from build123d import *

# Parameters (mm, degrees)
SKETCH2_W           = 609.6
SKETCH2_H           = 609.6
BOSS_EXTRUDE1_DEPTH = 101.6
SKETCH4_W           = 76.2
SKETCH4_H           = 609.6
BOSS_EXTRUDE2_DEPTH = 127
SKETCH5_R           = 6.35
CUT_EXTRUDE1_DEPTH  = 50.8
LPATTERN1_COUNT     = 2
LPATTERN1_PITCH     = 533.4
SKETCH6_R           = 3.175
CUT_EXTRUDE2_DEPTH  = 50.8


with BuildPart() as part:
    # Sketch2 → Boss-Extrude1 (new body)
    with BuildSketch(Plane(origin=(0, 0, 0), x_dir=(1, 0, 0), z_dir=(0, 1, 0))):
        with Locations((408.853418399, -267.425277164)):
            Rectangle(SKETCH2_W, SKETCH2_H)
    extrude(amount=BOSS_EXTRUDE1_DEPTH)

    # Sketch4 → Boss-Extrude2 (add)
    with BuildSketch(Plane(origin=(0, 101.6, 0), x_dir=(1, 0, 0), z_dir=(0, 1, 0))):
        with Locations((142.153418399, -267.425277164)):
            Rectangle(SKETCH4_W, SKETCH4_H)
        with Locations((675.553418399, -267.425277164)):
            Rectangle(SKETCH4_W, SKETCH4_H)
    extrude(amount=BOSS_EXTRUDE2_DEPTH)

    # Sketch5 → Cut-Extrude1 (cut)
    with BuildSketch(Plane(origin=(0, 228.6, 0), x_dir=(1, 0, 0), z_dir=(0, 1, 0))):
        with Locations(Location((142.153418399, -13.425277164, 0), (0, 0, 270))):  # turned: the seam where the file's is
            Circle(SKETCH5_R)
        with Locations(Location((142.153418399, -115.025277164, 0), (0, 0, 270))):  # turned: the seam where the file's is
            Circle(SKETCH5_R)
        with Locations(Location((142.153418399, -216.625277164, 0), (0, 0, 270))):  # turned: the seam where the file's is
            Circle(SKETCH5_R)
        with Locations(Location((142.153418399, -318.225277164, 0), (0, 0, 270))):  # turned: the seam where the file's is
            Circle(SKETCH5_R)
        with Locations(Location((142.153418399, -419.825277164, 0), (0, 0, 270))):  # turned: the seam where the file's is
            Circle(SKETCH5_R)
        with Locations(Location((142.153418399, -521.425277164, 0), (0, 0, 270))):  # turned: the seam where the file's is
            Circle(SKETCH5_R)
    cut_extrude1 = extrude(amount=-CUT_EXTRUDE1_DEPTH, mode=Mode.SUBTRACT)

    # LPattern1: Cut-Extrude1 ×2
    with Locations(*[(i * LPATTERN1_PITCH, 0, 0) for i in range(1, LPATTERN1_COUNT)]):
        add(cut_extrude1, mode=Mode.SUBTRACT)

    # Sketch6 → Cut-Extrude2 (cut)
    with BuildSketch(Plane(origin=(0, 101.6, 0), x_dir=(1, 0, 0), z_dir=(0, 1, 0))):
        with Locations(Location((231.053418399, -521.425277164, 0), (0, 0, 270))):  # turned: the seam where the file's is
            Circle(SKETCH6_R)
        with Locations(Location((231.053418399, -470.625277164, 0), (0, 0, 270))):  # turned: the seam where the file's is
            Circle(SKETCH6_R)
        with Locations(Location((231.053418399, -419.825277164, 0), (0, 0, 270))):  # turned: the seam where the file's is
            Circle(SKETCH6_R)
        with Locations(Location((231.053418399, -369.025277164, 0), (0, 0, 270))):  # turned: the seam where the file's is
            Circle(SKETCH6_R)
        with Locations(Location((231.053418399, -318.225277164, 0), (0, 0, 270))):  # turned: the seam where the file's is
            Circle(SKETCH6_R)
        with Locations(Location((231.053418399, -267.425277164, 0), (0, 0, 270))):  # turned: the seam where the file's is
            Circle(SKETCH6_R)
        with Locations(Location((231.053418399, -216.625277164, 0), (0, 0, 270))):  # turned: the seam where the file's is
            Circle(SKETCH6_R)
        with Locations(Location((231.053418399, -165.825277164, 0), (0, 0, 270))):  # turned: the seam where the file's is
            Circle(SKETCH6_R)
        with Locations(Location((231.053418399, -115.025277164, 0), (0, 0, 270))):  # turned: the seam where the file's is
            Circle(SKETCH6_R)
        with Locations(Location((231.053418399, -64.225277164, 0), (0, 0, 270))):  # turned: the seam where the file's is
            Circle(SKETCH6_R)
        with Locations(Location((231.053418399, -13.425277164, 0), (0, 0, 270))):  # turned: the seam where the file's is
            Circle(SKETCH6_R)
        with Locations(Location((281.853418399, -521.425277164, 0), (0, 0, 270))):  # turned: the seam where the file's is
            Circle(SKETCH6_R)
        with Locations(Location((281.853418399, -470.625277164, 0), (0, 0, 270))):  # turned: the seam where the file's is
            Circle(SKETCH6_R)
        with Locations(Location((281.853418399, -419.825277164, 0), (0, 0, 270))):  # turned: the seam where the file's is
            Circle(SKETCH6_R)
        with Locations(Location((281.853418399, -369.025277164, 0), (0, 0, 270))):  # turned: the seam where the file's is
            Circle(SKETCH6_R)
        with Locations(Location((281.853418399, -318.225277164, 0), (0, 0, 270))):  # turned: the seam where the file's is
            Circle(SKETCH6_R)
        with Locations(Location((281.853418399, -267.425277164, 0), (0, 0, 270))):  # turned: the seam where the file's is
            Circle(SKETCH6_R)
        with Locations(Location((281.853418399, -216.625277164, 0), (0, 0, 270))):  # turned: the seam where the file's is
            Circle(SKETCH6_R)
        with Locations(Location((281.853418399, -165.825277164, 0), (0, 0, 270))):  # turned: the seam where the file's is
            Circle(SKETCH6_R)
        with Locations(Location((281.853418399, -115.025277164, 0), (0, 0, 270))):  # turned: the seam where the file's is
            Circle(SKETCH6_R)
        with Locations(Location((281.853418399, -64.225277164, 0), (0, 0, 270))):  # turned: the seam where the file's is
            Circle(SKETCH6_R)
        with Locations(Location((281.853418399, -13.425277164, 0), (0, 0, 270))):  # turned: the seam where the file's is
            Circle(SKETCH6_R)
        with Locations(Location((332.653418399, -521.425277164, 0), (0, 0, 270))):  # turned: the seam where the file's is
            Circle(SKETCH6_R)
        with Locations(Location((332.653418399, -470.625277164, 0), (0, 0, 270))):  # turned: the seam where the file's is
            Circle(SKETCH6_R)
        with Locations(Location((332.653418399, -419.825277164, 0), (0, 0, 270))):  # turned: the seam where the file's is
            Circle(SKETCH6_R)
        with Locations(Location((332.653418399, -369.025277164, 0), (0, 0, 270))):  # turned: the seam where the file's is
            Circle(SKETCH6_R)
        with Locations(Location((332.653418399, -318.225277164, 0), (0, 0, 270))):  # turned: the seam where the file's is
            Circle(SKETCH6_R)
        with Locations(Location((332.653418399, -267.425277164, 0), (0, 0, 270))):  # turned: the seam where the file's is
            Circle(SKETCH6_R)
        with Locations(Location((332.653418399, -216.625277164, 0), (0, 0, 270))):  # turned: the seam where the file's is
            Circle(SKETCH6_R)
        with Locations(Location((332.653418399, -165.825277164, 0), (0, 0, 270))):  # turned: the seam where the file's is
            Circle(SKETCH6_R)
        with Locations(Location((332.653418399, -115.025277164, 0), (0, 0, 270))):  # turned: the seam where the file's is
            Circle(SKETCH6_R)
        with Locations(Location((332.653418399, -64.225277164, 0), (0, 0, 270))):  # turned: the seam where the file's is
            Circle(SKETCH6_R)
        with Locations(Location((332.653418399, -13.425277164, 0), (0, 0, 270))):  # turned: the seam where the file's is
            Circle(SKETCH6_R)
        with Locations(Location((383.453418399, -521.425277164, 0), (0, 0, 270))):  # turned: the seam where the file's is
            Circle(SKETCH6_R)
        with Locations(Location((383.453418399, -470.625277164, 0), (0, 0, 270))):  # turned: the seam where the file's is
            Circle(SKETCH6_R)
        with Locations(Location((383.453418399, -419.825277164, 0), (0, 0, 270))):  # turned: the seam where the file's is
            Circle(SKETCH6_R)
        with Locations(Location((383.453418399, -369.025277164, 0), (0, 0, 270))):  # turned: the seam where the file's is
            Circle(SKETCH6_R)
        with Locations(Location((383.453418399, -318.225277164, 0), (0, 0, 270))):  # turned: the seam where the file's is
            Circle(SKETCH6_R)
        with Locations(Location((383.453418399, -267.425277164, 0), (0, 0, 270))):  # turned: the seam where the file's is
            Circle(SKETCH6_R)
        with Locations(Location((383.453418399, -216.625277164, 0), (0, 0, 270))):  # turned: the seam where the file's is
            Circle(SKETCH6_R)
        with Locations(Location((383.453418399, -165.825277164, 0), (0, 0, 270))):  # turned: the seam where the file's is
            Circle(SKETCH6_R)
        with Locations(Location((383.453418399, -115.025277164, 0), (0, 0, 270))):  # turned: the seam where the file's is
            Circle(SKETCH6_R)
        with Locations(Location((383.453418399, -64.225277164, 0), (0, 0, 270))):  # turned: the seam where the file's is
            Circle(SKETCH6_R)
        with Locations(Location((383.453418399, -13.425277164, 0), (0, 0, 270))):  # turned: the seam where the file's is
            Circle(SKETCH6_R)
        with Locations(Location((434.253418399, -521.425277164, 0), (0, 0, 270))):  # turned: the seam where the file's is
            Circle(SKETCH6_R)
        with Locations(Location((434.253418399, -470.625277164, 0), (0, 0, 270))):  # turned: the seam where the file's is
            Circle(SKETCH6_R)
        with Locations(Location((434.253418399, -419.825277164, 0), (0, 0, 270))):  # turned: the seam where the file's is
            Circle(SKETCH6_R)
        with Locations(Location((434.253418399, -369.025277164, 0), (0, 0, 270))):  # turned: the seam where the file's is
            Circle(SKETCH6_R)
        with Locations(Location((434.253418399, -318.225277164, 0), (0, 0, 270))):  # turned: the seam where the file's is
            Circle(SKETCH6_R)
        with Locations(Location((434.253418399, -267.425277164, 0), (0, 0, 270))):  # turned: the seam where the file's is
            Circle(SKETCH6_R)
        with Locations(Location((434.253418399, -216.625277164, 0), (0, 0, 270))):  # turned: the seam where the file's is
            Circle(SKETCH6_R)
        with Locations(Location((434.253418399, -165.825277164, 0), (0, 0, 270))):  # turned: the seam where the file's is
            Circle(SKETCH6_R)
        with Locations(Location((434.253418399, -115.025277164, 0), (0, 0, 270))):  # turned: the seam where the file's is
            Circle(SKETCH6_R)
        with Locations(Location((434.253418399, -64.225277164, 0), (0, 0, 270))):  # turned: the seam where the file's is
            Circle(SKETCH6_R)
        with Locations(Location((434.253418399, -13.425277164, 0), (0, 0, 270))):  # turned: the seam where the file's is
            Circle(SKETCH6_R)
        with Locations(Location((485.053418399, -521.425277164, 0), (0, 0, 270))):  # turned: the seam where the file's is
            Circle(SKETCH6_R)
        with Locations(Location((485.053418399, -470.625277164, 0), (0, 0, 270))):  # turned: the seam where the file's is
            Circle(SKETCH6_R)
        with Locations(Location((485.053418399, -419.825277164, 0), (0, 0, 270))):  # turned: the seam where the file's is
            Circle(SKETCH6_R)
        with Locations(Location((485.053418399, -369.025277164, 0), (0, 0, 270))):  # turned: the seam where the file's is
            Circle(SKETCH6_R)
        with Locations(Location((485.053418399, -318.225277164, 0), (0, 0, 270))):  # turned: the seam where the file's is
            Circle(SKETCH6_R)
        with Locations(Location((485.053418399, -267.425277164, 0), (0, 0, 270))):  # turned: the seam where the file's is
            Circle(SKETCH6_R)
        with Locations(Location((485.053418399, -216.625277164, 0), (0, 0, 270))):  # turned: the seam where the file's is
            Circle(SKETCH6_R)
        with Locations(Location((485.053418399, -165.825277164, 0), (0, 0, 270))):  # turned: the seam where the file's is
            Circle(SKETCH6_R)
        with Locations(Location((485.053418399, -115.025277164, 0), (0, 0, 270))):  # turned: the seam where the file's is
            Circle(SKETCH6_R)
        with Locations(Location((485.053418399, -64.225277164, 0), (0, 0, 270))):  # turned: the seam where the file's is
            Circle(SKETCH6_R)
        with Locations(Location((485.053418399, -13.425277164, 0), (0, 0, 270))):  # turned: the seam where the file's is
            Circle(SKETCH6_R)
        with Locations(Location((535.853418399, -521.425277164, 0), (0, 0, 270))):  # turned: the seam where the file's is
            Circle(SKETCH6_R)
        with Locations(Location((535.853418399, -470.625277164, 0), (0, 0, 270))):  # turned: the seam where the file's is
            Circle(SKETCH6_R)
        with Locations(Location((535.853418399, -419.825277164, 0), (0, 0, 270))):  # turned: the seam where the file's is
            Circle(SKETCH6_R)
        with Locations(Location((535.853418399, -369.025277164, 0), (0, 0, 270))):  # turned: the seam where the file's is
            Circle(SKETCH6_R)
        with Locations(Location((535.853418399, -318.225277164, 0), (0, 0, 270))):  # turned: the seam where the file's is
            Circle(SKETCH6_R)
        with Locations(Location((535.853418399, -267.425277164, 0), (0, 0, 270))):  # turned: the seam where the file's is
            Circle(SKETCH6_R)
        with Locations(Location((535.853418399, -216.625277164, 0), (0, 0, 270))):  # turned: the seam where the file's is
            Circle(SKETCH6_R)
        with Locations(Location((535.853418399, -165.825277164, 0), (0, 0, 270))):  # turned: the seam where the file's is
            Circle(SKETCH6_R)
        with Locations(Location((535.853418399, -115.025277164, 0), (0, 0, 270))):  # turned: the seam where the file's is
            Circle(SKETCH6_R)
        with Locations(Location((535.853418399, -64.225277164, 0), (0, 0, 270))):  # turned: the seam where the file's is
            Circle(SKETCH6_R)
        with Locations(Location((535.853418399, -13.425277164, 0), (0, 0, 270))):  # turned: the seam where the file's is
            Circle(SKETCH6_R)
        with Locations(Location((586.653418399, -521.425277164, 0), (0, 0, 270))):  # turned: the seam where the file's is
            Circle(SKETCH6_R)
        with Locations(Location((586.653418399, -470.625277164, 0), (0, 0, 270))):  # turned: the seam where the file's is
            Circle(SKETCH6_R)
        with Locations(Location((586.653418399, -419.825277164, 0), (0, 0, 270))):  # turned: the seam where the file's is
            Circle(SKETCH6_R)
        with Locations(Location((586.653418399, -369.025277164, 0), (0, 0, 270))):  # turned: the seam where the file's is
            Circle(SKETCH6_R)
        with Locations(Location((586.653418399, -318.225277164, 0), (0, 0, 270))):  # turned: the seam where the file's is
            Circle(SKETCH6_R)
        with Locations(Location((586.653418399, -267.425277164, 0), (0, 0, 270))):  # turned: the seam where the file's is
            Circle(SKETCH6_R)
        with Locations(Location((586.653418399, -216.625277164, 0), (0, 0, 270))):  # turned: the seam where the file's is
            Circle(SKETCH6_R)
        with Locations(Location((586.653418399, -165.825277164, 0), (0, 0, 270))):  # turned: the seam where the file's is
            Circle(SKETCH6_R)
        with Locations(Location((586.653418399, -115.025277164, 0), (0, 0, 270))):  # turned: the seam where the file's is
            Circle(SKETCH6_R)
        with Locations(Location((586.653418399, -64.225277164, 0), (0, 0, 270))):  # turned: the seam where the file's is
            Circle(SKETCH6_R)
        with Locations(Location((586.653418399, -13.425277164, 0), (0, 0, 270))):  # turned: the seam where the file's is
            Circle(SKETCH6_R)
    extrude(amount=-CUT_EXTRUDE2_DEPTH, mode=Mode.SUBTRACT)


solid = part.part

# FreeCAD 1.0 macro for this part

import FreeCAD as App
import Part
import Sketcher
Q = App.Units.Quantity

doc = App.newDocument("Part")
body = doc.addObject("PartDesign::Body", "Body")

# Sketch on XZ plane
sketch1 = body.newObject("Sketcher::SketchObject", "Sketch")
sketch1.AttachmentSupport = (doc.getObject("XZ_Plane"), [""])
sketch1.MapMode = "FlatFace"
sketch1.addGeometry(Part.LineSegment(App.Vector(104, -37, 0), App.Vector(104, 572, 0)), False)
sketch1.addGeometry(Part.LineSegment(App.Vector(104, 572, 0), App.Vector(714, 572, 0)), False)
sketch1.addGeometry(Part.LineSegment(App.Vector(714, 572, 0), App.Vector(714, -37, 0)), False)
sketch1.addGeometry(Part.LineSegment(App.Vector(714, -37, 0), App.Vector(104, -37, 0)), False)
sketch1.addConstraint(Sketcher.Constraint("Coincident", 0, 2, 1, 1))
sketch1.addConstraint(Sketcher.Constraint("Coincident", 1, 2, 2, 1))
sketch1.addConstraint(Sketcher.Constraint("Coincident", 2, 2, 3, 1))
sketch1.addConstraint(Sketcher.Constraint("Coincident", 3, 2, 0, 1))
sketch1.addConstraint(Sketcher.Constraint("Vertical", 0))
sketch1.addConstraint(Sketcher.Constraint("Horizontal", 1))
sketch1.addConstraint(Sketcher.Constraint("Vertical", 2))
sketch1.addConstraint(Sketcher.Constraint("Horizontal", 3))
sketch1.addConstraint(Sketcher.Constraint("Equal", 3, 0))
sketch1.addConstraint(Sketcher.Constraint("DistanceX", 1, 1, 1, 2, Q("24 in")))
sketch1.addConstraint(Sketcher.Constraint("DistanceX", -1, 1, 0, 2, Q("104.053418 mm")))
sketch1.addConstraint(Sketcher.Constraint("DistanceY", -1, 1, 0, 2, Q("572.225277 mm")))
pad1 = body.newObject("PartDesign::Pad", "Pad")
pad1.Profile = sketch1
pad1.Length = Q("4 in")
pad1.Reversed = True

# Sketch on XZ plane
sketch2 = body.newObject("Sketcher::SketchObject", "Sketch001")
sketch2.AttachmentSupport = (doc.getObject("XZ_Plane"), [""])
sketch2.MapMode = "FlatFace"
sketch2.AttachmentOffset = App.Placement(App.Vector(0, 0, -4 * 25.4), App.Rotation())
sketch2.addGeometry(Part.LineSegment(App.Vector(104, -37, 0), App.Vector(104, 572, 0)), False)
sketch2.addGeometry(Part.LineSegment(App.Vector(104, 572, 0), App.Vector(180, 572, 0)), False)
sketch2.addGeometry(Part.LineSegment(App.Vector(180, 572, 0), App.Vector(180, -37, 0)), False)
sketch2.addGeometry(Part.LineSegment(App.Vector(180, -37, 0), App.Vector(104, -37, 0)), False)
sketch2.addGeometry(Part.LineSegment(App.Vector(637, -37, 0), App.Vector(637, 572, 0)), False)
sketch2.addGeometry(Part.LineSegment(App.Vector(637, 572, 0), App.Vector(714, 572, 0)), False)
sketch2.addGeometry(Part.LineSegment(App.Vector(714, 572, 0), App.Vector(714, -37, 0)), False)
sketch2.addGeometry(Part.LineSegment(App.Vector(714, -37, 0), App.Vector(637, -37, 0)), False)
sketch2.addConstraint(Sketcher.Constraint("Coincident", 0, 2, 1, 1))
sketch2.addConstraint(Sketcher.Constraint("Coincident", 1, 2, 2, 1))
sketch2.addConstraint(Sketcher.Constraint("Coincident", 2, 2, 3, 1))
sketch2.addConstraint(Sketcher.Constraint("Coincident", 3, 2, 0, 1))
sketch2.addConstraint(Sketcher.Constraint("Coincident", 4, 2, 5, 1))
sketch2.addConstraint(Sketcher.Constraint("Coincident", 5, 2, 6, 1))
sketch2.addConstraint(Sketcher.Constraint("Coincident", 6, 2, 7, 1))
sketch2.addConstraint(Sketcher.Constraint("Coincident", 7, 2, 4, 1))
sketch2.addConstraint(Sketcher.Constraint("Vertical", 0))
sketch2.addConstraint(Sketcher.Constraint("Horizontal", 1))
sketch2.addConstraint(Sketcher.Constraint("Vertical", 2))
sketch2.addConstraint(Sketcher.Constraint("Horizontal", 3))
sketch2.addConstraint(Sketcher.Constraint("Vertical", 4))
sketch2.addConstraint(Sketcher.Constraint("Horizontal", 5))
sketch2.addConstraint(Sketcher.Constraint("Vertical", 6))
sketch2.addConstraint(Sketcher.Constraint("Horizontal", 7))
sketch2.addConstraint(Sketcher.Constraint("Horizontal", 1, 2, 4, 2))
sketch2.addConstraint(Sketcher.Constraint("Horizontal", 3, 2, 6, 2))
sketch2.addConstraint(Sketcher.Constraint("Equal", 3, 5))
sketch2.addConstraint(Sketcher.Constraint("DistanceX", 1, 1, 1, 2, Q("3 in")))
sketch2.addConstraint(Sketcher.Constraint("DistanceY", 0, 1, 0, 2, Q("24 in")))
sketch2.addConstraint(Sketcher.Constraint("DistanceX", 1, 2, 4, 2, Q("18 in")))
sketch2.addConstraint(Sketcher.Constraint("DistanceX", -1, 1, 0, 2, Q("104.053418 mm")))
sketch2.addConstraint(Sketcher.Constraint("DistanceY", -1, 1, 0, 2, Q("572.225277 mm")))
pad2 = body.newObject("PartDesign::Pad", "Pad001")
pad2.Profile = sketch2
pad2.Length = Q("5 in")
pad2.Reversed = True

# Sketch on XZ plane
sketch3 = body.newObject("Sketcher::SketchObject", "Sketch002")
sketch3.AttachmentSupport = (doc.getObject("XZ_Plane"), [""])
sketch3.MapMode = "FlatFace"
sketch3.AttachmentOffset = App.Placement(App.Vector(0, 0, -9 * 25.4), App.Rotation())
sketch3.addGeometry(Part.Circle(App.Vector(142, 13, 0), App.Vector(0, 0, 1), 6), False)
sketch3.addGeometry(Part.Circle(App.Vector(142, 115, 0), App.Vector(0, 0, 1), 6), False)
sketch3.addGeometry(Part.Circle(App.Vector(142, 217, 0), App.Vector(0, 0, 1), 6), False)
sketch3.addGeometry(Part.Circle(App.Vector(142, 318, 0), App.Vector(0, 0, 1), 6), False)
sketch3.addGeometry(Part.Circle(App.Vector(142, 420, 0), App.Vector(0, 0, 1), 6), False)
sketch3.addGeometry(Part.Circle(App.Vector(142, 521, 0), App.Vector(0, 0, 1), 6), False)
sketch3.addConstraint(Sketcher.Constraint("Equal", 0, 1))
sketch3.addConstraint(Sketcher.Constraint("Equal", 1, 2))
sketch3.addConstraint(Sketcher.Constraint("Equal", 2, 3))
sketch3.addConstraint(Sketcher.Constraint("Equal", 3, 4))
sketch3.addConstraint(Sketcher.Constraint("Equal", 4, 5))
sketch3.addConstraint(Sketcher.Constraint("Vertical", 0, 3, 1, 3))
sketch3.addConstraint(Sketcher.Constraint("Vertical", 1, 3, 2, 3))
sketch3.addConstraint(Sketcher.Constraint("Vertical", 2, 3, 3, 3))
sketch3.addConstraint(Sketcher.Constraint("Vertical", 3, 3, 4, 3))
sketch3.addConstraint(Sketcher.Constraint("Vertical", 4, 3, 5, 3))
sketch3.addConstraint(Sketcher.Constraint("Diameter", 0, Q("0.5 in")))
sketch3.addConstraint(Sketcher.Constraint("DistanceY", 0, 3, 1, 3, Q("4 in")))
sketch3.addConstraint(Sketcher.Constraint("DistanceY", 1, 3, 2, 3, Q("4 in")))
sketch3.addConstraint(Sketcher.Constraint("DistanceY", 2, 3, 3, 3, Q("4 in")))
sketch3.addConstraint(Sketcher.Constraint("DistanceY", 3, 3, 4, 3, Q("4 in")))
sketch3.addConstraint(Sketcher.Constraint("DistanceY", 4, 3, 5, 3, Q("4 in")))
sketch3.addConstraint(Sketcher.Constraint("DistanceX", -1, 1, 0, 3, Q("142.153418 mm")))
sketch3.addConstraint(Sketcher.Constraint("DistanceY", -1, 1, 0, 3, Q("13.425277 mm")))
pocket1 = body.newObject("PartDesign::Pocket", "Pocket")
pocket1.Profile = sketch3
pocket1.Length = Q("2 in")
pocket1.Reversed = True
doc.recompute()

linearpattern = body.newObject("PartDesign::LinearPattern", "LinearPattern")
linearpattern.Originals = [pocket1]
linearpattern.Direction = (doc.getObject("X_Axis"), [""])
linearpattern.Mode = "offset"
linearpattern.Offset = Q("21 in")
linearpattern.Occurrences = 2
body.Tip = linearpattern

# Sketch on XZ plane
sketch4 = body.newObject("Sketcher::SketchObject", "Sketch003")
sketch4.AttachmentSupport = (doc.getObject("XZ_Plane"), [""])
sketch4.MapMode = "FlatFace"
sketch4.AttachmentOffset = App.Placement(App.Vector(0, 0, -4 * 25.4), App.Rotation())
sketch4.addGeometry(Part.Circle(App.Vector(231.1, 521.4, 0), App.Vector(0, 0, 1), 3.2), False)
sketch4.addGeometry(Part.Circle(App.Vector(231.1, 470.6, 0), App.Vector(0, 0, 1), 3.2), False)
sketch4.addGeometry(Part.Circle(App.Vector(231.1, 419.8, 0), App.Vector(0, 0, 1), 3.2), False)
sketch4.addGeometry(Part.Circle(App.Vector(231.1, 369, 0), App.Vector(0, 0, 1), 3.2), False)
sketch4.addGeometry(Part.Circle(App.Vector(231.1, 318.2, 0), App.Vector(0, 0, 1), 3.2), False)
sketch4.addGeometry(Part.Circle(App.Vector(231.1, 267.4, 0), App.Vector(0, 0, 1), 3.2), False)
sketch4.addGeometry(Part.Circle(App.Vector(231.1, 216.6, 0), App.Vector(0, 0, 1), 3.2), False)
sketch4.addGeometry(Part.Circle(App.Vector(231.1, 165.8, 0), App.Vector(0, 0, 1), 3.2), False)
sketch4.addGeometry(Part.Circle(App.Vector(231.1, 115, 0), App.Vector(0, 0, 1), 3.2), False)
sketch4.addGeometry(Part.Circle(App.Vector(231.1, 64.2, 0), App.Vector(0, 0, 1), 3.2), False)
sketch4.addGeometry(Part.Circle(App.Vector(231.1, 13.4, 0), App.Vector(0, 0, 1), 3.2), False)
sketch4.addGeometry(Part.Circle(App.Vector(281.9, 521.4, 0), App.Vector(0, 0, 1), 3.2), False)
sketch4.addGeometry(Part.Circle(App.Vector(281.9, 470.6, 0), App.Vector(0, 0, 1), 3.2), False)
sketch4.addGeometry(Part.Circle(App.Vector(281.9, 419.8, 0), App.Vector(0, 0, 1), 3.2), False)
sketch4.addGeometry(Part.Circle(App.Vector(281.9, 369, 0), App.Vector(0, 0, 1), 3.2), False)
sketch4.addGeometry(Part.Circle(App.Vector(281.9, 318.2, 0), App.Vector(0, 0, 1), 3.2), False)
sketch4.addGeometry(Part.Circle(App.Vector(281.9, 267.4, 0), App.Vector(0, 0, 1), 3.2), False)
sketch4.addGeometry(Part.Circle(App.Vector(281.9, 216.6, 0), App.Vector(0, 0, 1), 3.2), False)
sketch4.addGeometry(Part.Circle(App.Vector(281.9, 165.8, 0), App.Vector(0, 0, 1), 3.2), False)
sketch4.addGeometry(Part.Circle(App.Vector(281.9, 115, 0), App.Vector(0, 0, 1), 3.2), False)
sketch4.addGeometry(Part.Circle(App.Vector(281.9, 64.2, 0), App.Vector(0, 0, 1), 3.2), False)
sketch4.addGeometry(Part.Circle(App.Vector(281.9, 13.4, 0), App.Vector(0, 0, 1), 3.2), False)
sketch4.addGeometry(Part.Circle(App.Vector(332.7, 521.4, 0), App.Vector(0, 0, 1), 3.2), False)
sketch4.addGeometry(Part.Circle(App.Vector(332.7, 470.6, 0), App.Vector(0, 0, 1), 3.2), False)
sketch4.addGeometry(Part.Circle(App.Vector(332.7, 419.8, 0), App.Vector(0, 0, 1), 3.2), False)
sketch4.addGeometry(Part.Circle(App.Vector(332.7, 369, 0), App.Vector(0, 0, 1), 3.2), False)
sketch4.addGeometry(Part.Circle(App.Vector(332.7, 318.2, 0), App.Vector(0, 0, 1), 3.2), False)
sketch4.addGeometry(Part.Circle(App.Vector(332.7, 267.4, 0), App.Vector(0, 0, 1), 3.2), False)
sketch4.addGeometry(Part.Circle(App.Vector(332.7, 216.6, 0), App.Vector(0, 0, 1), 3.2), False)
sketch4.addGeometry(Part.Circle(App.Vector(332.7, 165.8, 0), App.Vector(0, 0, 1), 3.2), False)
sketch4.addGeometry(Part.Circle(App.Vector(332.7, 115, 0), App.Vector(0, 0, 1), 3.2), False)
sketch4.addGeometry(Part.Circle(App.Vector(332.7, 64.2, 0), App.Vector(0, 0, 1), 3.2), False)
sketch4.addGeometry(Part.Circle(App.Vector(332.7, 13.4, 0), App.Vector(0, 0, 1), 3.2), False)
sketch4.addGeometry(Part.Circle(App.Vector(383.5, 521.4, 0), App.Vector(0, 0, 1), 3.2), False)
sketch4.addGeometry(Part.Circle(App.Vector(383.5, 470.6, 0), App.Vector(0, 0, 1), 3.2), False)
sketch4.addGeometry(Part.Circle(App.Vector(383.5, 419.8, 0), App.Vector(0, 0, 1), 3.2), False)
sketch4.addGeometry(Part.Circle(App.Vector(383.5, 369, 0), App.Vector(0, 0, 1), 3.2), False)
sketch4.addGeometry(Part.Circle(App.Vector(383.5, 318.2, 0), App.Vector(0, 0, 1), 3.2), False)
sketch4.addGeometry(Part.Circle(App.Vector(383.5, 267.4, 0), App.Vector(0, 0, 1), 3.2), False)
sketch4.addGeometry(Part.Circle(App.Vector(383.5, 216.6, 0), App.Vector(0, 0, 1), 3.2), False)
sketch4.addGeometry(Part.Circle(App.Vector(383.5, 165.8, 0), App.Vector(0, 0, 1), 3.2), False)
sketch4.addGeometry(Part.Circle(App.Vector(383.5, 115, 0), App.Vector(0, 0, 1), 3.2), False)
sketch4.addGeometry(Part.Circle(App.Vector(383.5, 64.2, 0), App.Vector(0, 0, 1), 3.2), False)
sketch4.addGeometry(Part.Circle(App.Vector(383.5, 13.4, 0), App.Vector(0, 0, 1), 3.2), False)
sketch4.addGeometry(Part.Circle(App.Vector(434.3, 521.4, 0), App.Vector(0, 0, 1), 3.2), False)
sketch4.addGeometry(Part.Circle(App.Vector(434.3, 470.6, 0), App.Vector(0, 0, 1), 3.2), False)
sketch4.addGeometry(Part.Circle(App.Vector(434.3, 419.8, 0), App.Vector(0, 0, 1), 3.2), False)
sketch4.addGeometry(Part.Circle(App.Vector(434.3, 369, 0), App.Vector(0, 0, 1), 3.2), False)
sketch4.addGeometry(Part.Circle(App.Vector(434.3, 318.2, 0), App.Vector(0, 0, 1), 3.2), False)
sketch4.addGeometry(Part.Circle(App.Vector(434.3, 267.4, 0), App.Vector(0, 0, 1), 3.2), False)
sketch4.addGeometry(Part.Circle(App.Vector(434.3, 216.6, 0), App.Vector(0, 0, 1), 3.2), False)
sketch4.addGeometry(Part.Circle(App.Vector(434.3, 165.8, 0), App.Vector(0, 0, 1), 3.2), False)
sketch4.addGeometry(Part.Circle(App.Vector(434.3, 115, 0), App.Vector(0, 0, 1), 3.2), False)
sketch4.addGeometry(Part.Circle(App.Vector(434.3, 64.2, 0), App.Vector(0, 0, 1), 3.2), False)
sketch4.addGeometry(Part.Circle(App.Vector(434.3, 13.4, 0), App.Vector(0, 0, 1), 3.2), False)
sketch4.addGeometry(Part.Circle(App.Vector(485.1, 521.4, 0), App.Vector(0, 0, 1), 3.2), False)
sketch4.addGeometry(Part.Circle(App.Vector(485.1, 470.6, 0), App.Vector(0, 0, 1), 3.2), False)
sketch4.addGeometry(Part.Circle(App.Vector(485.1, 419.8, 0), App.Vector(0, 0, 1), 3.2), False)
sketch4.addGeometry(Part.Circle(App.Vector(485.1, 369, 0), App.Vector(0, 0, 1), 3.2), False)
sketch4.addGeometry(Part.Circle(App.Vector(485.1, 318.2, 0), App.Vector(0, 0, 1), 3.2), False)
sketch4.addGeometry(Part.Circle(App.Vector(485.1, 267.4, 0), App.Vector(0, 0, 1), 3.2), False)
sketch4.addGeometry(Part.Circle(App.Vector(485.1, 216.6, 0), App.Vector(0, 0, 1), 3.2), False)
sketch4.addGeometry(Part.Circle(App.Vector(485.1, 165.8, 0), App.Vector(0, 0, 1), 3.2), False)
sketch4.addGeometry(Part.Circle(App.Vector(485.1, 115, 0), App.Vector(0, 0, 1), 3.2), False)
sketch4.addGeometry(Part.Circle(App.Vector(485.1, 64.2, 0), App.Vector(0, 0, 1), 3.2), False)
sketch4.addGeometry(Part.Circle(App.Vector(485.1, 13.4, 0), App.Vector(0, 0, 1), 3.2), False)
sketch4.addGeometry(Part.Circle(App.Vector(535.9, 521.4, 0), App.Vector(0, 0, 1), 3.2), False)
sketch4.addGeometry(Part.Circle(App.Vector(535.9, 470.6, 0), App.Vector(0, 0, 1), 3.2), False)
sketch4.addGeometry(Part.Circle(App.Vector(535.9, 419.8, 0), App.Vector(0, 0, 1), 3.2), False)
sketch4.addGeometry(Part.Circle(App.Vector(535.9, 369, 0), App.Vector(0, 0, 1), 3.2), False)
sketch4.addGeometry(Part.Circle(App.Vector(535.9, 318.2, 0), App.Vector(0, 0, 1), 3.2), False)
sketch4.addGeometry(Part.Circle(App.Vector(535.9, 267.4, 0), App.Vector(0, 0, 1), 3.2), False)
sketch4.addGeometry(Part.Circle(App.Vector(535.9, 216.6, 0), App.Vector(0, 0, 1), 3.2), False)
sketch4.addGeometry(Part.Circle(App.Vector(535.9, 165.8, 0), App.Vector(0, 0, 1), 3.2), False)
sketch4.addGeometry(Part.Circle(App.Vector(535.9, 115, 0), App.Vector(0, 0, 1), 3.2), False)
sketch4.addGeometry(Part.Circle(App.Vector(535.9, 64.2, 0), App.Vector(0, 0, 1), 3.2), False)
sketch4.addGeometry(Part.Circle(App.Vector(535.9, 13.4, 0), App.Vector(0, 0, 1), 3.2), False)
sketch4.addGeometry(Part.Circle(App.Vector(586.7, 521.4, 0), App.Vector(0, 0, 1), 3.2), False)
sketch4.addGeometry(Part.Circle(App.Vector(586.7, 470.6, 0), App.Vector(0, 0, 1), 3.2), False)
sketch4.addGeometry(Part.Circle(App.Vector(586.7, 419.8, 0), App.Vector(0, 0, 1), 3.2), False)
sketch4.addGeometry(Part.Circle(App.Vector(586.7, 369, 0), App.Vector(0, 0, 1), 3.2), False)
sketch4.addGeometry(Part.Circle(App.Vector(586.7, 318.2, 0), App.Vector(0, 0, 1), 3.2), False)
sketch4.addGeometry(Part.Circle(App.Vector(586.7, 267.4, 0), App.Vector(0, 0, 1), 3.2), False)
sketch4.addGeometry(Part.Circle(App.Vector(586.7, 216.6, 0), App.Vector(0, 0, 1), 3.2), False)
sketch4.addGeometry(Part.Circle(App.Vector(586.7, 165.8, 0), App.Vector(0, 0, 1), 3.2), False)
sketch4.addGeometry(Part.Circle(App.Vector(586.7, 115, 0), App.Vector(0, 0, 1), 3.2), False)
sketch4.addGeometry(Part.Circle(App.Vector(586.7, 64.2, 0), App.Vector(0, 0, 1), 3.2), False)
sketch4.addGeometry(Part.Circle(App.Vector(586.7, 13.4, 0), App.Vector(0, 0, 1), 3.2), False)
sketch4.addConstraint(Sketcher.Constraint("Equal", 0, 1))
sketch4.addConstraint(Sketcher.Constraint("Equal", 1, 2))
sketch4.addConstraint(Sketcher.Constraint("Equal", 2, 3))
sketch4.addConstraint(Sketcher.Constraint("Equal", 3, 4))
sketch4.addConstraint(Sketcher.Constraint("Equal", 4, 5))
sketch4.addConstraint(Sketcher.Constraint("Equal", 5, 6))
sketch4.addConstraint(Sketcher.Constraint("Equal", 6, 7))
sketch4.addConstraint(Sketcher.Constraint("Equal", 7, 8))
sketch4.addConstraint(Sketcher.Constraint("Equal", 8, 9))
sketch4.addConstraint(Sketcher.Constraint("Equal", 9, 10))
sketch4.addConstraint(Sketcher.Constraint("Equal", 10, 11))
sketch4.addConstraint(Sketcher.Constraint("Equal", 11, 12))
sketch4.addConstraint(Sketcher.Constraint("Equal", 12, 13))
sketch4.addConstraint(Sketcher.Constraint("Equal", 13, 14))
sketch4.addConstraint(Sketcher.Constraint("Equal", 14, 15))
sketch4.addConstraint(Sketcher.Constraint("Equal", 15, 16))
sketch4.addConstraint(Sketcher.Constraint("Equal", 16, 17))
sketch4.addConstraint(Sketcher.Constraint("Equal", 17, 18))
sketch4.addConstraint(Sketcher.Constraint("Equal", 18, 19))
sketch4.addConstraint(Sketcher.Constraint("Equal", 19, 20))
sketch4.addConstraint(Sketcher.Constraint("Equal", 20, 21))
sketch4.addConstraint(Sketcher.Constraint("Equal", 21, 22))
sketch4.addConstraint(Sketcher.Constraint("Equal", 22, 23))
sketch4.addConstraint(Sketcher.Constraint("Equal", 23, 24))
sketch4.addConstraint(Sketcher.Constraint("Equal", 24, 25))
sketch4.addConstraint(Sketcher.Constraint("Equal", 25, 26))
sketch4.addConstraint(Sketcher.Constraint("Equal", 26, 27))
sketch4.addConstraint(Sketcher.Constraint("Equal", 27, 28))
sketch4.addConstraint(Sketcher.Constraint("Equal", 28, 29))
sketch4.addConstraint(Sketcher.Constraint("Equal", 29, 30))
sketch4.addConstraint(Sketcher.Constraint("Equal", 30, 31))
sketch4.addConstraint(Sketcher.Constraint("Equal", 31, 32))
sketch4.addConstraint(Sketcher.Constraint("Equal", 32, 33))
sketch4.addConstraint(Sketcher.Constraint("Equal", 33, 34))
sketch4.addConstraint(Sketcher.Constraint("Equal", 34, 35))
sketch4.addConstraint(Sketcher.Constraint("Equal", 35, 36))
sketch4.addConstraint(Sketcher.Constraint("Equal", 36, 37))
sketch4.addConstraint(Sketcher.Constraint("Equal", 37, 38))
sketch4.addConstraint(Sketcher.Constraint("Equal", 38, 39))
sketch4.addConstraint(Sketcher.Constraint("Equal", 39, 40))
sketch4.addConstraint(Sketcher.Constraint("Equal", 40, 41))
sketch4.addConstraint(Sketcher.Constraint("Equal", 41, 42))
sketch4.addConstraint(Sketcher.Constraint("Equal", 42, 43))
sketch4.addConstraint(Sketcher.Constraint("Equal", 43, 44))
sketch4.addConstraint(Sketcher.Constraint("Equal", 44, 45))
sketch4.addConstraint(Sketcher.Constraint("Equal", 45, 46))
sketch4.addConstraint(Sketcher.Constraint("Equal", 46, 47))
sketch4.addConstraint(Sketcher.Constraint("Equal", 47, 48))
sketch4.addConstraint(Sketcher.Constraint("Equal", 48, 49))
sketch4.addConstraint(Sketcher.Constraint("Equal", 49, 50))
sketch4.addConstraint(Sketcher.Constraint("Equal", 50, 51))
sketch4.addConstraint(Sketcher.Constraint("Equal", 51, 52))
sketch4.addConstraint(Sketcher.Constraint("Equal", 52, 53))
sketch4.addConstraint(Sketcher.Constraint("Equal", 53, 54))
sketch4.addConstraint(Sketcher.Constraint("Equal", 54, 55))
sketch4.addConstraint(Sketcher.Constraint("Equal", 55, 56))
sketch4.addConstraint(Sketcher.Constraint("Equal", 56, 57))
sketch4.addConstraint(Sketcher.Constraint("Equal", 57, 58))
sketch4.addConstraint(Sketcher.Constraint("Equal", 58, 59))
sketch4.addConstraint(Sketcher.Constraint("Equal", 59, 60))
sketch4.addConstraint(Sketcher.Constraint("Equal", 60, 61))
sketch4.addConstraint(Sketcher.Constraint("Equal", 61, 62))
sketch4.addConstraint(Sketcher.Constraint("Equal", 62, 63))
sketch4.addConstraint(Sketcher.Constraint("Equal", 63, 64))
sketch4.addConstraint(Sketcher.Constraint("Equal", 64, 65))
sketch4.addConstraint(Sketcher.Constraint("Equal", 65, 66))
sketch4.addConstraint(Sketcher.Constraint("Equal", 66, 67))
sketch4.addConstraint(Sketcher.Constraint("Equal", 67, 68))
sketch4.addConstraint(Sketcher.Constraint("Equal", 68, 69))
sketch4.addConstraint(Sketcher.Constraint("Equal", 69, 70))
sketch4.addConstraint(Sketcher.Constraint("Equal", 70, 71))
sketch4.addConstraint(Sketcher.Constraint("Equal", 71, 72))
sketch4.addConstraint(Sketcher.Constraint("Equal", 72, 73))
sketch4.addConstraint(Sketcher.Constraint("Equal", 73, 74))
sketch4.addConstraint(Sketcher.Constraint("Equal", 74, 75))
sketch4.addConstraint(Sketcher.Constraint("Equal", 75, 76))
sketch4.addConstraint(Sketcher.Constraint("Equal", 76, 77))
sketch4.addConstraint(Sketcher.Constraint("Equal", 77, 78))
sketch4.addConstraint(Sketcher.Constraint("Equal", 78, 79))
sketch4.addConstraint(Sketcher.Constraint("Equal", 79, 80))
sketch4.addConstraint(Sketcher.Constraint("Equal", 80, 81))
sketch4.addConstraint(Sketcher.Constraint("Equal", 81, 82))
sketch4.addConstraint(Sketcher.Constraint("Equal", 82, 83))
sketch4.addConstraint(Sketcher.Constraint("Equal", 83, 84))
sketch4.addConstraint(Sketcher.Constraint("Equal", 84, 85))
sketch4.addConstraint(Sketcher.Constraint("Equal", 85, 86))
sketch4.addConstraint(Sketcher.Constraint("Equal", 86, 87))
sketch4.addConstraint(Sketcher.Constraint("Horizontal", 0, 3, 11, 3))
sketch4.addConstraint(Sketcher.Constraint("Horizontal", 1, 3, 12, 3))
sketch4.addConstraint(Sketcher.Constraint("Horizontal", 2, 3, 13, 3))
sketch4.addConstraint(Sketcher.Constraint("Horizontal", 3, 3, 14, 3))
sketch4.addConstraint(Sketcher.Constraint("Horizontal", 4, 3, 15, 3))
sketch4.addConstraint(Sketcher.Constraint("Horizontal", 5, 3, 16, 3))
sketch4.addConstraint(Sketcher.Constraint("Horizontal", 6, 3, 17, 3))
sketch4.addConstraint(Sketcher.Constraint("Horizontal", 7, 3, 18, 3))
sketch4.addConstraint(Sketcher.Constraint("Horizontal", 8, 3, 19, 3))
sketch4.addConstraint(Sketcher.Constraint("Horizontal", 9, 3, 20, 3))
sketch4.addConstraint(Sketcher.Constraint("Horizontal", 10, 3, 21, 3))
sketch4.addConstraint(Sketcher.Constraint("Horizontal", 11, 3, 22, 3))
sketch4.addConstraint(Sketcher.Constraint("Horizontal", 12, 3, 23, 3))
sketch4.addConstraint(Sketcher.Constraint("Horizontal", 13, 3, 24, 3))
sketch4.addConstraint(Sketcher.Constraint("Horizontal", 14, 3, 25, 3))
sketch4.addConstraint(Sketcher.Constraint("Horizontal", 15, 3, 26, 3))
sketch4.addConstraint(Sketcher.Constraint("Horizontal", 16, 3, 27, 3))
sketch4.addConstraint(Sketcher.Constraint("Horizontal", 17, 3, 28, 3))
sketch4.addConstraint(Sketcher.Constraint("Horizontal", 18, 3, 29, 3))
sketch4.addConstraint(Sketcher.Constraint("Horizontal", 19, 3, 30, 3))
sketch4.addConstraint(Sketcher.Constraint("Horizontal", 20, 3, 31, 3))
sketch4.addConstraint(Sketcher.Constraint("Horizontal", 21, 3, 32, 3))
sketch4.addConstraint(Sketcher.Constraint("Horizontal", 22, 3, 33, 3))
sketch4.addConstraint(Sketcher.Constraint("Horizontal", 23, 3, 34, 3))
sketch4.addConstraint(Sketcher.Constraint("Horizontal", 24, 3, 35, 3))
sketch4.addConstraint(Sketcher.Constraint("Horizontal", 25, 3, 36, 3))
sketch4.addConstraint(Sketcher.Constraint("Horizontal", 26, 3, 37, 3))
sketch4.addConstraint(Sketcher.Constraint("Horizontal", 27, 3, 38, 3))
sketch4.addConstraint(Sketcher.Constraint("Horizontal", 28, 3, 39, 3))
sketch4.addConstraint(Sketcher.Constraint("Horizontal", 29, 3, 40, 3))
sketch4.addConstraint(Sketcher.Constraint("Horizontal", 30, 3, 41, 3))
sketch4.addConstraint(Sketcher.Constraint("Horizontal", 31, 3, 42, 3))
sketch4.addConstraint(Sketcher.Constraint("Horizontal", 32, 3, 43, 3))
sketch4.addConstraint(Sketcher.Constraint("Horizontal", 33, 3, 44, 3))
sketch4.addConstraint(Sketcher.Constraint("Horizontal", 34, 3, 45, 3))
sketch4.addConstraint(Sketcher.Constraint("Horizontal", 35, 3, 46, 3))
sketch4.addConstraint(Sketcher.Constraint("Horizontal", 36, 3, 47, 3))
sketch4.addConstraint(Sketcher.Constraint("Horizontal", 37, 3, 48, 3))
sketch4.addConstraint(Sketcher.Constraint("Horizontal", 38, 3, 49, 3))
sketch4.addConstraint(Sketcher.Constraint("Horizontal", 39, 3, 50, 3))
sketch4.addConstraint(Sketcher.Constraint("Horizontal", 40, 3, 51, 3))
sketch4.addConstraint(Sketcher.Constraint("Horizontal", 41, 3, 52, 3))
sketch4.addConstraint(Sketcher.Constraint("Horizontal", 42, 3, 53, 3))
sketch4.addConstraint(Sketcher.Constraint("Horizontal", 43, 3, 54, 3))
sketch4.addConstraint(Sketcher.Constraint("Horizontal", 44, 3, 55, 3))
sketch4.addConstraint(Sketcher.Constraint("Horizontal", 45, 3, 56, 3))
sketch4.addConstraint(Sketcher.Constraint("Horizontal", 46, 3, 57, 3))
sketch4.addConstraint(Sketcher.Constraint("Horizontal", 47, 3, 58, 3))
sketch4.addConstraint(Sketcher.Constraint("Horizontal", 48, 3, 59, 3))
sketch4.addConstraint(Sketcher.Constraint("Horizontal", 49, 3, 60, 3))
sketch4.addConstraint(Sketcher.Constraint("Horizontal", 50, 3, 61, 3))
sketch4.addConstraint(Sketcher.Constraint("Horizontal", 51, 3, 62, 3))
sketch4.addConstraint(Sketcher.Constraint("Horizontal", 52, 3, 63, 3))
sketch4.addConstraint(Sketcher.Constraint("Horizontal", 53, 3, 64, 3))
sketch4.addConstraint(Sketcher.Constraint("Horizontal", 54, 3, 65, 3))
sketch4.addConstraint(Sketcher.Constraint("Horizontal", 55, 3, 66, 3))
sketch4.addConstraint(Sketcher.Constraint("Horizontal", 56, 3, 67, 3))
sketch4.addConstraint(Sketcher.Constraint("Horizontal", 57, 3, 68, 3))
sketch4.addConstraint(Sketcher.Constraint("Horizontal", 58, 3, 69, 3))
sketch4.addConstraint(Sketcher.Constraint("Horizontal", 59, 3, 70, 3))
sketch4.addConstraint(Sketcher.Constraint("Horizontal", 60, 3, 71, 3))
sketch4.addConstraint(Sketcher.Constraint("Horizontal", 61, 3, 72, 3))
sketch4.addConstraint(Sketcher.Constraint("Horizontal", 62, 3, 73, 3))
sketch4.addConstraint(Sketcher.Constraint("Horizontal", 63, 3, 74, 3))
sketch4.addConstraint(Sketcher.Constraint("Horizontal", 64, 3, 75, 3))
sketch4.addConstraint(Sketcher.Constraint("Horizontal", 65, 3, 76, 3))
sketch4.addConstraint(Sketcher.Constraint("Horizontal", 66, 3, 77, 3))
sketch4.addConstraint(Sketcher.Constraint("Horizontal", 67, 3, 78, 3))
sketch4.addConstraint(Sketcher.Constraint("Horizontal", 68, 3, 79, 3))
sketch4.addConstraint(Sketcher.Constraint("Horizontal", 69, 3, 80, 3))
sketch4.addConstraint(Sketcher.Constraint("Horizontal", 70, 3, 81, 3))
sketch4.addConstraint(Sketcher.Constraint("Horizontal", 71, 3, 82, 3))
sketch4.addConstraint(Sketcher.Constraint("Horizontal", 72, 3, 83, 3))
sketch4.addConstraint(Sketcher.Constraint("Horizontal", 73, 3, 84, 3))
sketch4.addConstraint(Sketcher.Constraint("Horizontal", 74, 3, 85, 3))
sketch4.addConstraint(Sketcher.Constraint("Horizontal", 75, 3, 86, 3))
sketch4.addConstraint(Sketcher.Constraint("Horizontal", 76, 3, 87, 3))
sketch4.addConstraint(Sketcher.Constraint("Vertical", 0, 3, 1, 3))
sketch4.addConstraint(Sketcher.Constraint("Vertical", 1, 3, 2, 3))
sketch4.addConstraint(Sketcher.Constraint("Vertical", 2, 3, 3, 3))
sketch4.addConstraint(Sketcher.Constraint("Vertical", 3, 3, 4, 3))
sketch4.addConstraint(Sketcher.Constraint("Vertical", 4, 3, 5, 3))
sketch4.addConstraint(Sketcher.Constraint("Vertical", 5, 3, 6, 3))
sketch4.addConstraint(Sketcher.Constraint("Vertical", 6, 3, 7, 3))
sketch4.addConstraint(Sketcher.Constraint("Vertical", 7, 3, 8, 3))
sketch4.addConstraint(Sketcher.Constraint("Vertical", 8, 3, 9, 3))
sketch4.addConstraint(Sketcher.Constraint("Vertical", 9, 3, 10, 3))
sketch4.addConstraint(Sketcher.Constraint("Vertical", 11, 3, 12, 3))
sketch4.addConstraint(Sketcher.Constraint("Vertical", 12, 3, 13, 3))
sketch4.addConstraint(Sketcher.Constraint("Vertical", 13, 3, 14, 3))
sketch4.addConstraint(Sketcher.Constraint("Vertical", 14, 3, 15, 3))
sketch4.addConstraint(Sketcher.Constraint("Vertical", 15, 3, 16, 3))
sketch4.addConstraint(Sketcher.Constraint("Vertical", 16, 3, 17, 3))
sketch4.addConstraint(Sketcher.Constraint("Vertical", 17, 3, 18, 3))
sketch4.addConstraint(Sketcher.Constraint("Vertical", 18, 3, 19, 3))
sketch4.addConstraint(Sketcher.Constraint("Vertical", 19, 3, 20, 3))
sketch4.addConstraint(Sketcher.Constraint("Vertical", 20, 3, 21, 3))
sketch4.addConstraint(Sketcher.Constraint("Vertical", 22, 3, 23, 3))
sketch4.addConstraint(Sketcher.Constraint("Vertical", 23, 3, 24, 3))
sketch4.addConstraint(Sketcher.Constraint("Vertical", 24, 3, 25, 3))
sketch4.addConstraint(Sketcher.Constraint("Vertical", 25, 3, 26, 3))
sketch4.addConstraint(Sketcher.Constraint("Vertical", 26, 3, 27, 3))
sketch4.addConstraint(Sketcher.Constraint("Vertical", 27, 3, 28, 3))
sketch4.addConstraint(Sketcher.Constraint("Vertical", 28, 3, 29, 3))
sketch4.addConstraint(Sketcher.Constraint("Vertical", 29, 3, 30, 3))
sketch4.addConstraint(Sketcher.Constraint("Vertical", 30, 3, 31, 3))
sketch4.addConstraint(Sketcher.Constraint("Vertical", 31, 3, 32, 3))
sketch4.addConstraint(Sketcher.Constraint("Vertical", 33, 3, 34, 3))
sketch4.addConstraint(Sketcher.Constraint("Vertical", 34, 3, 35, 3))
sketch4.addConstraint(Sketcher.Constraint("Vertical", 35, 3, 36, 3))
sketch4.addConstraint(Sketcher.Constraint("Vertical", 36, 3, 37, 3))
sketch4.addConstraint(Sketcher.Constraint("Vertical", 37, 3, 38, 3))
sketch4.addConstraint(Sketcher.Constraint("Vertical", 38, 3, 39, 3))
sketch4.addConstraint(Sketcher.Constraint("Vertical", 39, 3, 40, 3))
sketch4.addConstraint(Sketcher.Constraint("Vertical", 40, 3, 41, 3))
sketch4.addConstraint(Sketcher.Constraint("Vertical", 41, 3, 42, 3))
sketch4.addConstraint(Sketcher.Constraint("Vertical", 42, 3, 43, 3))
sketch4.addConstraint(Sketcher.Constraint("Vertical", 44, 3, 45, 3))
sketch4.addConstraint(Sketcher.Constraint("Vertical", 45, 3, 46, 3))
sketch4.addConstraint(Sketcher.Constraint("Vertical", 46, 3, 47, 3))
sketch4.addConstraint(Sketcher.Constraint("Vertical", 47, 3, 48, 3))
sketch4.addConstraint(Sketcher.Constraint("Vertical", 48, 3, 49, 3))
sketch4.addConstraint(Sketcher.Constraint("Vertical", 49, 3, 50, 3))
sketch4.addConstraint(Sketcher.Constraint("Vertical", 50, 3, 51, 3))
sketch4.addConstraint(Sketcher.Constraint("Vertical", 51, 3, 52, 3))
sketch4.addConstraint(Sketcher.Constraint("Vertical", 52, 3, 53, 3))
sketch4.addConstraint(Sketcher.Constraint("Vertical", 53, 3, 54, 3))
sketch4.addConstraint(Sketcher.Constraint("Vertical", 55, 3, 56, 3))
sketch4.addConstraint(Sketcher.Constraint("Vertical", 56, 3, 57, 3))
sketch4.addConstraint(Sketcher.Constraint("Vertical", 57, 3, 58, 3))
sketch4.addConstraint(Sketcher.Constraint("Vertical", 58, 3, 59, 3))
sketch4.addConstraint(Sketcher.Constraint("Vertical", 59, 3, 60, 3))
sketch4.addConstraint(Sketcher.Constraint("Vertical", 60, 3, 61, 3))
sketch4.addConstraint(Sketcher.Constraint("Vertical", 61, 3, 62, 3))
sketch4.addConstraint(Sketcher.Constraint("Vertical", 62, 3, 63, 3))
sketch4.addConstraint(Sketcher.Constraint("Vertical", 63, 3, 64, 3))
sketch4.addConstraint(Sketcher.Constraint("Vertical", 64, 3, 65, 3))
sketch4.addConstraint(Sketcher.Constraint("Vertical", 66, 3, 67, 3))
sketch4.addConstraint(Sketcher.Constraint("Vertical", 67, 3, 68, 3))
sketch4.addConstraint(Sketcher.Constraint("Vertical", 68, 3, 69, 3))
sketch4.addConstraint(Sketcher.Constraint("Vertical", 69, 3, 70, 3))
sketch4.addConstraint(Sketcher.Constraint("Vertical", 70, 3, 71, 3))
sketch4.addConstraint(Sketcher.Constraint("Vertical", 71, 3, 72, 3))
sketch4.addConstraint(Sketcher.Constraint("Vertical", 72, 3, 73, 3))
sketch4.addConstraint(Sketcher.Constraint("Vertical", 73, 3, 74, 3))
sketch4.addConstraint(Sketcher.Constraint("Vertical", 74, 3, 75, 3))
sketch4.addConstraint(Sketcher.Constraint("Vertical", 75, 3, 76, 3))
sketch4.addConstraint(Sketcher.Constraint("Vertical", 77, 3, 78, 3))
sketch4.addConstraint(Sketcher.Constraint("Vertical", 78, 3, 79, 3))
sketch4.addConstraint(Sketcher.Constraint("Vertical", 79, 3, 80, 3))
sketch4.addConstraint(Sketcher.Constraint("Vertical", 80, 3, 81, 3))
sketch4.addConstraint(Sketcher.Constraint("Vertical", 81, 3, 82, 3))
sketch4.addConstraint(Sketcher.Constraint("Vertical", 82, 3, 83, 3))
sketch4.addConstraint(Sketcher.Constraint("Vertical", 83, 3, 84, 3))
sketch4.addConstraint(Sketcher.Constraint("Vertical", 84, 3, 85, 3))
sketch4.addConstraint(Sketcher.Constraint("Vertical", 85, 3, 86, 3))
sketch4.addConstraint(Sketcher.Constraint("Vertical", 86, 3, 87, 3))
sketch4.addConstraint(Sketcher.Constraint("Diameter", 0, Q("0.25 in")))
sketch4.addConstraint(Sketcher.Constraint("DistanceX", -1, 1, 0, 3, Q("231.053418 mm")))
sketch4.addConstraint(Sketcher.Constraint("DistanceX", -1, 1, 11, 3, Q("281.853418 mm")))
sketch4.addConstraint(Sketcher.Constraint("DistanceX", -1, 1, 22, 3, Q("332.653418 mm")))
sketch4.addConstraint(Sketcher.Constraint("DistanceX", -1, 1, 33, 3, Q("383.453418 mm")))
sketch4.addConstraint(Sketcher.Constraint("DistanceX", -1, 1, 44, 3, Q("434.253418 mm")))
sketch4.addConstraint(Sketcher.Constraint("DistanceX", -1, 1, 55, 3, Q("485.053418 mm")))
sketch4.addConstraint(Sketcher.Constraint("DistanceX", -1, 1, 66, 3, Q("535.853418 mm")))
sketch4.addConstraint(Sketcher.Constraint("DistanceX", -1, 1, 77, 3, Q("586.653418 mm")))
sketch4.addConstraint(Sketcher.Constraint("DistanceY", -1, 1, 0, 3, Q("521.425277 mm")))
sketch4.addConstraint(Sketcher.Constraint("DistanceY", -1, 1, 1, 3, Q("470.625277 mm")))
sketch4.addConstraint(Sketcher.Constraint("DistanceY", -1, 1, 2, 3, Q("419.825277 mm")))
sketch4.addConstraint(Sketcher.Constraint("DistanceY", -1, 1, 3, 3, Q("369.025277 mm")))
sketch4.addConstraint(Sketcher.Constraint("DistanceY", -1, 1, 4, 3, Q("318.225277 mm")))
sketch4.addConstraint(Sketcher.Constraint("DistanceY", -1, 1, 5, 3, Q("267.425277 mm")))
sketch4.addConstraint(Sketcher.Constraint("DistanceY", -1, 1, 6, 3, Q("216.625277 mm")))
sketch4.addConstraint(Sketcher.Constraint("DistanceY", -1, 1, 7, 3, Q("165.825277 mm")))
sketch4.addConstraint(Sketcher.Constraint("DistanceY", -1, 1, 8, 3, Q("115.025277 mm")))
sketch4.addConstraint(Sketcher.Constraint("DistanceY", -1, 1, 9, 3, Q("64.225277 mm")))
sketch4.addConstraint(Sketcher.Constraint("DistanceY", -1, 1, 10, 3, Q("13.425277 mm")))
pocket2 = body.newObject("PartDesign::Pocket", "Pocket001")
pocket2.Profile = sketch4
pocket2.Length = Q("2 in")
pocket2.Reversed = True

doc.recompute()
